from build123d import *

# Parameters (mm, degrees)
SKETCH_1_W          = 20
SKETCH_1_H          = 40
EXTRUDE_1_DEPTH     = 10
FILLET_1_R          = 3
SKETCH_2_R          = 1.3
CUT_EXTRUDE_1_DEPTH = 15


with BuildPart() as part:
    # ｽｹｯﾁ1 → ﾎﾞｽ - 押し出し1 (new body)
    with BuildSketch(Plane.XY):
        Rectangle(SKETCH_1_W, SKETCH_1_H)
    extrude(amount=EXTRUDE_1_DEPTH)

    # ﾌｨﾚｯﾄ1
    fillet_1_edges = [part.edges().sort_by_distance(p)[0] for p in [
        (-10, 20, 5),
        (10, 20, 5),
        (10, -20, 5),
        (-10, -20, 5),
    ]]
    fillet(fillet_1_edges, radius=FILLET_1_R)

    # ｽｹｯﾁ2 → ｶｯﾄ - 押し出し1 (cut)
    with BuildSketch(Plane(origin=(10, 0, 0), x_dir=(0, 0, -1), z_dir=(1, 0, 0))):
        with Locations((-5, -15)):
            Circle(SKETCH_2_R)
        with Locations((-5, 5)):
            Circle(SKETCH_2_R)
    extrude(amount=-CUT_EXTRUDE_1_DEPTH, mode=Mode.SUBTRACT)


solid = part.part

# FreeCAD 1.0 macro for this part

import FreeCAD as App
import Part
import Sketcher


def edges_at(feature, points):
    """Names of the edges that pass closest to the given points."""
    edges = feature.Shape.Edges
    near = lambda p: min(range(len(edges)), key=lambda i: edges[i].distToShape(Part.Vertex(*p))[0])
    return sorted({f"Edge{near(p) + 1}" for p in points})


def add_polygon(sketch, points):
    """Adds a closed chain of lines whose ends are joined by coincident constraints."""
    first, n = sketch.GeometryCount, len(points)
    for a, b in zip(points, points[1:] + points[:1]):
        sketch.addGeometry(Part.LineSegment(App.Vector(*a, 0), App.Vector(*b, 0)), False)
    for i in range(n):
        sketch.addConstraint(Sketcher.Constraint("Coincident", first + i, 2, first + (i + 1) % n, 1))

doc = App.newDocument("Part")
params = doc.addObject("Spreadsheet::Sheet", "Params")
for row, (alias, value) in enumerate([
    ("sketch1_width", "20 mm"),
    ("sketch1_height", "40 mm"),
    ("pad1_length", "10 mm"),
    ("fillet_radius", "3 mm"),
    ("sketch2_diameter", "2.6 mm"),
    ("pocket1_length", "15 mm"),
], start=1):
    params.set(f"A{row}", alias)
    params.set(f"B{row}", "=" + value)
    params.setAlias(f"B{row}", alias)

body = doc.addObject("PartDesign::Body", "Body")

# Sketch on XY plane
sketch1 = body.newObject("Sketcher::SketchObject", "Sketch")
sketch1.AttachmentSupport = (doc.getObject("XY_Plane"), [""])
sketch1.MapMode = "FlatFace"
add_polygon(sketch1, [(-10, 20), (-10, -20), (10, -20), (10, 20)])  # lines 0-3
sketch1.addConstraint([
    Sketcher.Constraint("Vertical", 0),
    Sketcher.Constraint("Horizontal", 1),
    Sketcher.Constraint("Vertical", 2),
    Sketcher.Constraint("Horizontal", 3),
    Sketcher.Constraint("Symmetric", 0, 2, 2, 2, -1, 1),
    Sketcher.Constraint("DistanceX", 1, 1, 1, 2, 20.0),
    Sketcher.Constraint("DistanceY", 0, 2, 0, 1, 40.0),
])
sketch1.setExpression("Constraints[9]", "Params.sketch1_width")
sketch1.setExpression("Constraints[10]", "Params.sketch1_height")
pad1 = body.newObject("PartDesign::Pad", "Pad")
pad1.Profile = sketch1
pad1.setExpression("Length", "Params.pad1_length")
doc.recompute()

fillet = body.newObject("PartDesign::Fillet", "Fillet")
fillet.Base = (pad1, edges_at(pad1, [
    (-10, 20, 5),
    (10, 20, 5),
    (10, -20, 5),
    (-10, -20, 5),
]))
fillet.setExpression("Radius", "Params.fillet_radius")

# Sketch on YZ plane
sketch2 = body.newObject("Sketcher::SketchObject", "Sketch001")
sketch2.AttachmentSupport = (doc.getObject("YZ_Plane"), [""])
sketch2.MapMode = "FlatFace"
sketch2.AttachmentOffset = App.Placement(App.Vector(0, 0, 10), App.Rotation())
sketch2.addGeometry([
    Part.Circle(App.Vector(-15, 5, 0), App.Vector(0, 0, 1), 1.3),
    Part.Circle(App.Vector(5, 5, 0), App.Vector(0, 0, 1), 1.3),
], False)
sketch2.addConstraint([
    Sketcher.Constraint("Equal", 0, 1),
    Sketcher.Constraint("Horizontal", 0, 3, 1, 3),
    Sketcher.Constraint("Diameter", 0, 2.6),
    Sketcher.Constraint("DistanceX", 0, 3, -1, 1, 15.0),
    Sketcher.Constraint("DistanceY", -1, 1, 0, 3, 5.0),
    Sketcher.Constraint("DistanceX", -1, 1, 1, 3, 5.0),
])
sketch2.setExpression("Constraints[2]", "Params.sketch2_diameter")
pocket1 = body.newObject("PartDesign::Pocket", "Pocket")
pocket1.Profile = sketch2
pocket1.setExpression("Length", "Params.pocket1_length")

doc.recompute()
